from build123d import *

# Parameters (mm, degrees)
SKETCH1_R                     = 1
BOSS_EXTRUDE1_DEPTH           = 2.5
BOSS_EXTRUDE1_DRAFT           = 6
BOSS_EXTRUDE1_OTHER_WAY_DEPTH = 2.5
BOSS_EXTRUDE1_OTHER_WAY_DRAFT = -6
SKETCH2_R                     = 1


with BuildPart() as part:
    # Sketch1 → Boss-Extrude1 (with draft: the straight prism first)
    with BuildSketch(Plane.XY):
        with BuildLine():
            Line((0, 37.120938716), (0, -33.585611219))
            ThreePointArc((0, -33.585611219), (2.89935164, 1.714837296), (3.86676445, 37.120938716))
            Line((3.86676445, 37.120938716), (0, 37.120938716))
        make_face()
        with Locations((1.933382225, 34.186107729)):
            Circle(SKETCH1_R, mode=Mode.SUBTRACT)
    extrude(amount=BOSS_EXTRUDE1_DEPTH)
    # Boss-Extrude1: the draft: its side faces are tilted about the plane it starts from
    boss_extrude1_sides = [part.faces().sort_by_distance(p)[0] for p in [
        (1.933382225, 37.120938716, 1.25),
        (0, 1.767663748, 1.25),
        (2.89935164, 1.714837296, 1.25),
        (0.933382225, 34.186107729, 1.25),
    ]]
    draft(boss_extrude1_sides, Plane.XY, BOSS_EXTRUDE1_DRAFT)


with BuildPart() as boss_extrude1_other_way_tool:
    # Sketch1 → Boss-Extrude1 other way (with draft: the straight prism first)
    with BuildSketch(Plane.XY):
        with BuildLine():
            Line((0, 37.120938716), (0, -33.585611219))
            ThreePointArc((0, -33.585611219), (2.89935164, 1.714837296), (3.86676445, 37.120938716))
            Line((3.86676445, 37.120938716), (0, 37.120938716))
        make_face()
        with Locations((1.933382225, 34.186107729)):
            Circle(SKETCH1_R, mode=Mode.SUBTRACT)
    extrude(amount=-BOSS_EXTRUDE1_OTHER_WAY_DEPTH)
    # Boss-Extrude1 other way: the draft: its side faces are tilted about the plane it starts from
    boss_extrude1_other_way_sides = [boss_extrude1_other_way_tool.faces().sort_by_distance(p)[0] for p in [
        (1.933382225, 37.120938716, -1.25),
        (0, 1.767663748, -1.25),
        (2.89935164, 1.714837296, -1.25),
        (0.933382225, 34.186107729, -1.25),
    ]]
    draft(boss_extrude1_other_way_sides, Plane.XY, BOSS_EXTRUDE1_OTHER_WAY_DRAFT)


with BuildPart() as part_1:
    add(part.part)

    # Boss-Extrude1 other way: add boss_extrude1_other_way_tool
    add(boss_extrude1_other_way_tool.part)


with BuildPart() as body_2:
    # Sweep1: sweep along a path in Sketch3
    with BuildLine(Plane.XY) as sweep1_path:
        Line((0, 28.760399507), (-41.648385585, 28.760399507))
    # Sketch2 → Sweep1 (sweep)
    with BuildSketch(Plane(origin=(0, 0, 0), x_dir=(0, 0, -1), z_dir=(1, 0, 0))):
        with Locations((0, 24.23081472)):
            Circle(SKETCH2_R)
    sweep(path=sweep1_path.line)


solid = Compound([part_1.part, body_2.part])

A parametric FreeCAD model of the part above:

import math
import FreeCAD as App
import Part
import Sketcher
from FreeCAD import Vector
Q = App.Units.Quantity


def faces_at(feature, points):
    """Names of the faces that lie closest to the given points."""
    faces = feature.Shape.Faces
    near = lambda p: min(range(len(faces)), key=lambda i: faces[i].distToShape(Part.Vertex(*p))[0])
    return sorted({f"Face{near(p) + 1}" for p in points})

doc = App.newDocument("Part")
body = doc.addObject("PartDesign::Body", "Body")

sketch1 = body.newObject("Sketcher::SketchObject", "Sketch")
sketch1.AttachmentSupport = (doc.getObject("XY_Plane"), [""])
sketch1.MapMode = "FlatFace"
sketch1.addGeometry(Part.LineSegment(Vector(0, 37.1, 0), Vector(0, -33.6, 0)), False)
sketch1.addGeometry(Part.ArcOfCircle(Part.Circle(Vector(-644.5, 37.1, 0), Vector(0, 0, 1), 648.4), math.radians(-6.26), math.radians(0)), False)
sketch1.addGeometry(Part.LineSegment(Vector(3.9, 37.1, 0), Vector(0, 37.1, 0)), False)
sketch1.addGeometry(Part.Circle(Vector(1.9, 34.2, 0), Vector(0, 0, 1), 1), False)
sketch1.addConstraint(Sketcher.Constraint("Coincident", 0, 2, 1, 1))
sketch1.addConstraint(Sketcher.Constraint("Coincident", 1, 2, 2, 1))
sketch1.addConstraint(Sketcher.Constraint("Coincident", 2, 2, 0, 1))
sketch1.addConstraint(Sketcher.Constraint("Vertical", 0))
sketch1.addConstraint(Sketcher.Constraint("Horizontal", 2))
sketch1.addConstraint(Sketcher.Constraint("PointOnObject", 0, 2, -2))
sketch1.addConstraint(Sketcher.Constraint("Diameter", 3, Q("2 mm")))
sketch1.addConstraint(Sketcher.Constraint("Radius", 1, Q("648.393267 mm")))
sketch1.addConstraint(Sketcher.Constraint("DistanceY", 0, 2, 0, 1, Q("70.70655 mm")))
sketch1.addConstraint(Sketcher.Constraint("DistanceX", 2, 2, 2, 1, Q("3.866764 mm")))
sketch1.addConstraint(Sketcher.Constraint("DistanceY", -1, 1, 1, 3, Q("37.120939 mm")))
sketch1.addConstraint(Sketcher.Constraint("DistanceY", 3, 3, 1, 3, Q("2.934831 mm")))
sketch1.addConstraint(Sketcher.Constraint("DistanceX", -1, 1, 3, 3, Q("1.933382 mm")))
pad1 = body.newObject("PartDesign::Pad", "Pad")
pad1.Profile = sketch1
pad1.Length = 2.5
doc.recompute()

draft = body.newObject("PartDesign::Draft", "Draft")
draft.Base = (pad1, faces_at(pad1, [
    (1.933, 37.121, 1.25),
    (0, 1.768, 1.25),
    (2.899, 1.715, 1.25),
    (0.933, 34.186, 1.25),
]))
draft.NeutralPlane = (doc.getObject("XY_Plane"), [""])
draft.Angle = 6
draft.Reversed = False
body2 = doc.addObject("PartDesign::Body", "Body001")

sketch2 = body2.newObject("Sketcher::SketchObject", "Sketch001")
sketch2.AttachmentSupport = (doc.getObject("XY_Plane001"), [""])
sketch2.MapMode = "FlatFace"
sketch2.addGeometry(Part.LineSegment(Vector(0, 37.1, 0), Vector(0, -33.6, 0)), False)
sketch2.addGeometry(Part.ArcOfCircle(Part.Circle(Vector(-644.5, 37.1, 0), Vector(0, 0, 1), 648.4), math.radians(-6.26), math.radians(0)), False)
sketch2.addGeometry(Part.LineSegment(Vector(3.9, 37.1, 0), Vector(0, 37.1, 0)), False)
sketch2.addGeometry(Part.Circle(Vector(1.9, 34.2, 0), Vector(0, 0, 1), 1), False)
sketch2.addConstraint(Sketcher.Constraint("Coincident", 0, 2, 1, 1))
sketch2.addConstraint(Sketcher.Constraint("Coincident", 1, 2, 2, 1))
sketch2.addConstraint(Sketcher.Constraint("Coincident", 2, 2, 0, 1))
sketch2.addConstraint(Sketcher.Constraint("Vertical", 0))
sketch2.addConstraint(Sketcher.Constraint("Horizontal", 2))
sketch2.addConstraint(Sketcher.Constraint("PointOnObject", 0, 2, -2))
sketch2.addConstraint(Sketcher.Constraint("Diameter", 3, Q("2 mm")))
sketch2.addConstraint(Sketcher.Constraint("Radius", 1, Q("648.393267 mm")))
sketch2.addConstraint(Sketcher.Constraint("DistanceY", 0, 2, 0, 1, Q("70.70655 mm")))
sketch2.addConstraint(Sketcher.Constraint("DistanceX", 2, 2, 2, 1, Q("3.866764 mm")))
sketch2.addConstraint(Sketcher.Constraint("DistanceY", -1, 1, 1, 3, Q("37.120939 mm")))
sketch2.addConstraint(Sketcher.Constraint("DistanceY", 3, 3, 1, 3, Q("2.934831 mm")))
sketch2.addConstraint(Sketcher.Constraint("DistanceX", -1, 1, 3, 3, Q("1.933382 mm")))
pad2 = body2.newObject("PartDesign::Pad", "Pad001")
pad2.Profile = sketch2
pad2.Length = 2.5
pad2.Reversed = True
doc.recompute()

draft2 = body2.newObject("PartDesign::Draft", "Draft001")
draft2.Base = (pad2, faces_at(pad2, [
    (1.933, 37.121, -1.25),
    (0, 1.768, -1.25),
    (2.899, 1.715, -1.25),
    (0.933, 34.186, -1.25),
]))
draft2.NeutralPlane = (doc.getObject("XY_Plane001"), [""])
draft2.Angle = 6
draft2.Reversed = True
doc.recompute()

boolean = body.newObject("PartDesign::Boolean", "Boolean")
boolean.Type = "Fuse"
boolean.addObjects([body2])
body3 = doc.addObject("PartDesign::Body", "Body002")

sketch3 = body3.newObject("Sketcher::SketchObject", "Sketch002")
sketch3.AttachmentSupport = (doc.getObject("YZ_Plane002"), [""])
sketch3.MapMode = "FlatFace"
sketch3.addGeometry(Part.Circle(Vector(24.2, 0, 0), Vector(0, 0, 1), 1), False)
sketch3.addConstraint(Sketcher.Constraint("PointOnObject", 0, 3, -1))
sketch3.addConstraint(Sketcher.Constraint("Diameter", 0, Q("2 mm")))
sketch3.addConstraint(Sketcher.Constraint("DistanceX", -1, 1, 0, 3, Q("24.230815 mm")))

sketch4 = body3.newObject("Sketcher::SketchObject", "Sketch003")
sketch4.AttachmentSupport = (doc.getObject("XY_Plane002"), [""])
sketch4.MapMode = "FlatFace"
sketch4.addGeometry(Part.LineSegment(Vector(0, 29, 0), Vector(-42, 29, 0)), False)
sketch4.addConstraint(Sketcher.Constraint("Horizontal", 0))
sketch4.addConstraint(Sketcher.Constraint("PointOnObject", 0, 1, -2))
sketch4.addConstraint(Sketcher.Constraint("DistanceY", -1, 1, 0, 1, Q("28.7604 mm")))
sketch4.addConstraint(Sketcher.Constraint("DistanceX", 0, 2, 0, 1, Q("41.648386 mm")))
doc.recompute()

additivepipe = body3.newObject("PartDesign::AdditivePipe", "AdditivePipe")
additivepipe.Profile = sketch3
additivepipe.Spine = (sketch4, ["Edge1"])

doc.recompute()
